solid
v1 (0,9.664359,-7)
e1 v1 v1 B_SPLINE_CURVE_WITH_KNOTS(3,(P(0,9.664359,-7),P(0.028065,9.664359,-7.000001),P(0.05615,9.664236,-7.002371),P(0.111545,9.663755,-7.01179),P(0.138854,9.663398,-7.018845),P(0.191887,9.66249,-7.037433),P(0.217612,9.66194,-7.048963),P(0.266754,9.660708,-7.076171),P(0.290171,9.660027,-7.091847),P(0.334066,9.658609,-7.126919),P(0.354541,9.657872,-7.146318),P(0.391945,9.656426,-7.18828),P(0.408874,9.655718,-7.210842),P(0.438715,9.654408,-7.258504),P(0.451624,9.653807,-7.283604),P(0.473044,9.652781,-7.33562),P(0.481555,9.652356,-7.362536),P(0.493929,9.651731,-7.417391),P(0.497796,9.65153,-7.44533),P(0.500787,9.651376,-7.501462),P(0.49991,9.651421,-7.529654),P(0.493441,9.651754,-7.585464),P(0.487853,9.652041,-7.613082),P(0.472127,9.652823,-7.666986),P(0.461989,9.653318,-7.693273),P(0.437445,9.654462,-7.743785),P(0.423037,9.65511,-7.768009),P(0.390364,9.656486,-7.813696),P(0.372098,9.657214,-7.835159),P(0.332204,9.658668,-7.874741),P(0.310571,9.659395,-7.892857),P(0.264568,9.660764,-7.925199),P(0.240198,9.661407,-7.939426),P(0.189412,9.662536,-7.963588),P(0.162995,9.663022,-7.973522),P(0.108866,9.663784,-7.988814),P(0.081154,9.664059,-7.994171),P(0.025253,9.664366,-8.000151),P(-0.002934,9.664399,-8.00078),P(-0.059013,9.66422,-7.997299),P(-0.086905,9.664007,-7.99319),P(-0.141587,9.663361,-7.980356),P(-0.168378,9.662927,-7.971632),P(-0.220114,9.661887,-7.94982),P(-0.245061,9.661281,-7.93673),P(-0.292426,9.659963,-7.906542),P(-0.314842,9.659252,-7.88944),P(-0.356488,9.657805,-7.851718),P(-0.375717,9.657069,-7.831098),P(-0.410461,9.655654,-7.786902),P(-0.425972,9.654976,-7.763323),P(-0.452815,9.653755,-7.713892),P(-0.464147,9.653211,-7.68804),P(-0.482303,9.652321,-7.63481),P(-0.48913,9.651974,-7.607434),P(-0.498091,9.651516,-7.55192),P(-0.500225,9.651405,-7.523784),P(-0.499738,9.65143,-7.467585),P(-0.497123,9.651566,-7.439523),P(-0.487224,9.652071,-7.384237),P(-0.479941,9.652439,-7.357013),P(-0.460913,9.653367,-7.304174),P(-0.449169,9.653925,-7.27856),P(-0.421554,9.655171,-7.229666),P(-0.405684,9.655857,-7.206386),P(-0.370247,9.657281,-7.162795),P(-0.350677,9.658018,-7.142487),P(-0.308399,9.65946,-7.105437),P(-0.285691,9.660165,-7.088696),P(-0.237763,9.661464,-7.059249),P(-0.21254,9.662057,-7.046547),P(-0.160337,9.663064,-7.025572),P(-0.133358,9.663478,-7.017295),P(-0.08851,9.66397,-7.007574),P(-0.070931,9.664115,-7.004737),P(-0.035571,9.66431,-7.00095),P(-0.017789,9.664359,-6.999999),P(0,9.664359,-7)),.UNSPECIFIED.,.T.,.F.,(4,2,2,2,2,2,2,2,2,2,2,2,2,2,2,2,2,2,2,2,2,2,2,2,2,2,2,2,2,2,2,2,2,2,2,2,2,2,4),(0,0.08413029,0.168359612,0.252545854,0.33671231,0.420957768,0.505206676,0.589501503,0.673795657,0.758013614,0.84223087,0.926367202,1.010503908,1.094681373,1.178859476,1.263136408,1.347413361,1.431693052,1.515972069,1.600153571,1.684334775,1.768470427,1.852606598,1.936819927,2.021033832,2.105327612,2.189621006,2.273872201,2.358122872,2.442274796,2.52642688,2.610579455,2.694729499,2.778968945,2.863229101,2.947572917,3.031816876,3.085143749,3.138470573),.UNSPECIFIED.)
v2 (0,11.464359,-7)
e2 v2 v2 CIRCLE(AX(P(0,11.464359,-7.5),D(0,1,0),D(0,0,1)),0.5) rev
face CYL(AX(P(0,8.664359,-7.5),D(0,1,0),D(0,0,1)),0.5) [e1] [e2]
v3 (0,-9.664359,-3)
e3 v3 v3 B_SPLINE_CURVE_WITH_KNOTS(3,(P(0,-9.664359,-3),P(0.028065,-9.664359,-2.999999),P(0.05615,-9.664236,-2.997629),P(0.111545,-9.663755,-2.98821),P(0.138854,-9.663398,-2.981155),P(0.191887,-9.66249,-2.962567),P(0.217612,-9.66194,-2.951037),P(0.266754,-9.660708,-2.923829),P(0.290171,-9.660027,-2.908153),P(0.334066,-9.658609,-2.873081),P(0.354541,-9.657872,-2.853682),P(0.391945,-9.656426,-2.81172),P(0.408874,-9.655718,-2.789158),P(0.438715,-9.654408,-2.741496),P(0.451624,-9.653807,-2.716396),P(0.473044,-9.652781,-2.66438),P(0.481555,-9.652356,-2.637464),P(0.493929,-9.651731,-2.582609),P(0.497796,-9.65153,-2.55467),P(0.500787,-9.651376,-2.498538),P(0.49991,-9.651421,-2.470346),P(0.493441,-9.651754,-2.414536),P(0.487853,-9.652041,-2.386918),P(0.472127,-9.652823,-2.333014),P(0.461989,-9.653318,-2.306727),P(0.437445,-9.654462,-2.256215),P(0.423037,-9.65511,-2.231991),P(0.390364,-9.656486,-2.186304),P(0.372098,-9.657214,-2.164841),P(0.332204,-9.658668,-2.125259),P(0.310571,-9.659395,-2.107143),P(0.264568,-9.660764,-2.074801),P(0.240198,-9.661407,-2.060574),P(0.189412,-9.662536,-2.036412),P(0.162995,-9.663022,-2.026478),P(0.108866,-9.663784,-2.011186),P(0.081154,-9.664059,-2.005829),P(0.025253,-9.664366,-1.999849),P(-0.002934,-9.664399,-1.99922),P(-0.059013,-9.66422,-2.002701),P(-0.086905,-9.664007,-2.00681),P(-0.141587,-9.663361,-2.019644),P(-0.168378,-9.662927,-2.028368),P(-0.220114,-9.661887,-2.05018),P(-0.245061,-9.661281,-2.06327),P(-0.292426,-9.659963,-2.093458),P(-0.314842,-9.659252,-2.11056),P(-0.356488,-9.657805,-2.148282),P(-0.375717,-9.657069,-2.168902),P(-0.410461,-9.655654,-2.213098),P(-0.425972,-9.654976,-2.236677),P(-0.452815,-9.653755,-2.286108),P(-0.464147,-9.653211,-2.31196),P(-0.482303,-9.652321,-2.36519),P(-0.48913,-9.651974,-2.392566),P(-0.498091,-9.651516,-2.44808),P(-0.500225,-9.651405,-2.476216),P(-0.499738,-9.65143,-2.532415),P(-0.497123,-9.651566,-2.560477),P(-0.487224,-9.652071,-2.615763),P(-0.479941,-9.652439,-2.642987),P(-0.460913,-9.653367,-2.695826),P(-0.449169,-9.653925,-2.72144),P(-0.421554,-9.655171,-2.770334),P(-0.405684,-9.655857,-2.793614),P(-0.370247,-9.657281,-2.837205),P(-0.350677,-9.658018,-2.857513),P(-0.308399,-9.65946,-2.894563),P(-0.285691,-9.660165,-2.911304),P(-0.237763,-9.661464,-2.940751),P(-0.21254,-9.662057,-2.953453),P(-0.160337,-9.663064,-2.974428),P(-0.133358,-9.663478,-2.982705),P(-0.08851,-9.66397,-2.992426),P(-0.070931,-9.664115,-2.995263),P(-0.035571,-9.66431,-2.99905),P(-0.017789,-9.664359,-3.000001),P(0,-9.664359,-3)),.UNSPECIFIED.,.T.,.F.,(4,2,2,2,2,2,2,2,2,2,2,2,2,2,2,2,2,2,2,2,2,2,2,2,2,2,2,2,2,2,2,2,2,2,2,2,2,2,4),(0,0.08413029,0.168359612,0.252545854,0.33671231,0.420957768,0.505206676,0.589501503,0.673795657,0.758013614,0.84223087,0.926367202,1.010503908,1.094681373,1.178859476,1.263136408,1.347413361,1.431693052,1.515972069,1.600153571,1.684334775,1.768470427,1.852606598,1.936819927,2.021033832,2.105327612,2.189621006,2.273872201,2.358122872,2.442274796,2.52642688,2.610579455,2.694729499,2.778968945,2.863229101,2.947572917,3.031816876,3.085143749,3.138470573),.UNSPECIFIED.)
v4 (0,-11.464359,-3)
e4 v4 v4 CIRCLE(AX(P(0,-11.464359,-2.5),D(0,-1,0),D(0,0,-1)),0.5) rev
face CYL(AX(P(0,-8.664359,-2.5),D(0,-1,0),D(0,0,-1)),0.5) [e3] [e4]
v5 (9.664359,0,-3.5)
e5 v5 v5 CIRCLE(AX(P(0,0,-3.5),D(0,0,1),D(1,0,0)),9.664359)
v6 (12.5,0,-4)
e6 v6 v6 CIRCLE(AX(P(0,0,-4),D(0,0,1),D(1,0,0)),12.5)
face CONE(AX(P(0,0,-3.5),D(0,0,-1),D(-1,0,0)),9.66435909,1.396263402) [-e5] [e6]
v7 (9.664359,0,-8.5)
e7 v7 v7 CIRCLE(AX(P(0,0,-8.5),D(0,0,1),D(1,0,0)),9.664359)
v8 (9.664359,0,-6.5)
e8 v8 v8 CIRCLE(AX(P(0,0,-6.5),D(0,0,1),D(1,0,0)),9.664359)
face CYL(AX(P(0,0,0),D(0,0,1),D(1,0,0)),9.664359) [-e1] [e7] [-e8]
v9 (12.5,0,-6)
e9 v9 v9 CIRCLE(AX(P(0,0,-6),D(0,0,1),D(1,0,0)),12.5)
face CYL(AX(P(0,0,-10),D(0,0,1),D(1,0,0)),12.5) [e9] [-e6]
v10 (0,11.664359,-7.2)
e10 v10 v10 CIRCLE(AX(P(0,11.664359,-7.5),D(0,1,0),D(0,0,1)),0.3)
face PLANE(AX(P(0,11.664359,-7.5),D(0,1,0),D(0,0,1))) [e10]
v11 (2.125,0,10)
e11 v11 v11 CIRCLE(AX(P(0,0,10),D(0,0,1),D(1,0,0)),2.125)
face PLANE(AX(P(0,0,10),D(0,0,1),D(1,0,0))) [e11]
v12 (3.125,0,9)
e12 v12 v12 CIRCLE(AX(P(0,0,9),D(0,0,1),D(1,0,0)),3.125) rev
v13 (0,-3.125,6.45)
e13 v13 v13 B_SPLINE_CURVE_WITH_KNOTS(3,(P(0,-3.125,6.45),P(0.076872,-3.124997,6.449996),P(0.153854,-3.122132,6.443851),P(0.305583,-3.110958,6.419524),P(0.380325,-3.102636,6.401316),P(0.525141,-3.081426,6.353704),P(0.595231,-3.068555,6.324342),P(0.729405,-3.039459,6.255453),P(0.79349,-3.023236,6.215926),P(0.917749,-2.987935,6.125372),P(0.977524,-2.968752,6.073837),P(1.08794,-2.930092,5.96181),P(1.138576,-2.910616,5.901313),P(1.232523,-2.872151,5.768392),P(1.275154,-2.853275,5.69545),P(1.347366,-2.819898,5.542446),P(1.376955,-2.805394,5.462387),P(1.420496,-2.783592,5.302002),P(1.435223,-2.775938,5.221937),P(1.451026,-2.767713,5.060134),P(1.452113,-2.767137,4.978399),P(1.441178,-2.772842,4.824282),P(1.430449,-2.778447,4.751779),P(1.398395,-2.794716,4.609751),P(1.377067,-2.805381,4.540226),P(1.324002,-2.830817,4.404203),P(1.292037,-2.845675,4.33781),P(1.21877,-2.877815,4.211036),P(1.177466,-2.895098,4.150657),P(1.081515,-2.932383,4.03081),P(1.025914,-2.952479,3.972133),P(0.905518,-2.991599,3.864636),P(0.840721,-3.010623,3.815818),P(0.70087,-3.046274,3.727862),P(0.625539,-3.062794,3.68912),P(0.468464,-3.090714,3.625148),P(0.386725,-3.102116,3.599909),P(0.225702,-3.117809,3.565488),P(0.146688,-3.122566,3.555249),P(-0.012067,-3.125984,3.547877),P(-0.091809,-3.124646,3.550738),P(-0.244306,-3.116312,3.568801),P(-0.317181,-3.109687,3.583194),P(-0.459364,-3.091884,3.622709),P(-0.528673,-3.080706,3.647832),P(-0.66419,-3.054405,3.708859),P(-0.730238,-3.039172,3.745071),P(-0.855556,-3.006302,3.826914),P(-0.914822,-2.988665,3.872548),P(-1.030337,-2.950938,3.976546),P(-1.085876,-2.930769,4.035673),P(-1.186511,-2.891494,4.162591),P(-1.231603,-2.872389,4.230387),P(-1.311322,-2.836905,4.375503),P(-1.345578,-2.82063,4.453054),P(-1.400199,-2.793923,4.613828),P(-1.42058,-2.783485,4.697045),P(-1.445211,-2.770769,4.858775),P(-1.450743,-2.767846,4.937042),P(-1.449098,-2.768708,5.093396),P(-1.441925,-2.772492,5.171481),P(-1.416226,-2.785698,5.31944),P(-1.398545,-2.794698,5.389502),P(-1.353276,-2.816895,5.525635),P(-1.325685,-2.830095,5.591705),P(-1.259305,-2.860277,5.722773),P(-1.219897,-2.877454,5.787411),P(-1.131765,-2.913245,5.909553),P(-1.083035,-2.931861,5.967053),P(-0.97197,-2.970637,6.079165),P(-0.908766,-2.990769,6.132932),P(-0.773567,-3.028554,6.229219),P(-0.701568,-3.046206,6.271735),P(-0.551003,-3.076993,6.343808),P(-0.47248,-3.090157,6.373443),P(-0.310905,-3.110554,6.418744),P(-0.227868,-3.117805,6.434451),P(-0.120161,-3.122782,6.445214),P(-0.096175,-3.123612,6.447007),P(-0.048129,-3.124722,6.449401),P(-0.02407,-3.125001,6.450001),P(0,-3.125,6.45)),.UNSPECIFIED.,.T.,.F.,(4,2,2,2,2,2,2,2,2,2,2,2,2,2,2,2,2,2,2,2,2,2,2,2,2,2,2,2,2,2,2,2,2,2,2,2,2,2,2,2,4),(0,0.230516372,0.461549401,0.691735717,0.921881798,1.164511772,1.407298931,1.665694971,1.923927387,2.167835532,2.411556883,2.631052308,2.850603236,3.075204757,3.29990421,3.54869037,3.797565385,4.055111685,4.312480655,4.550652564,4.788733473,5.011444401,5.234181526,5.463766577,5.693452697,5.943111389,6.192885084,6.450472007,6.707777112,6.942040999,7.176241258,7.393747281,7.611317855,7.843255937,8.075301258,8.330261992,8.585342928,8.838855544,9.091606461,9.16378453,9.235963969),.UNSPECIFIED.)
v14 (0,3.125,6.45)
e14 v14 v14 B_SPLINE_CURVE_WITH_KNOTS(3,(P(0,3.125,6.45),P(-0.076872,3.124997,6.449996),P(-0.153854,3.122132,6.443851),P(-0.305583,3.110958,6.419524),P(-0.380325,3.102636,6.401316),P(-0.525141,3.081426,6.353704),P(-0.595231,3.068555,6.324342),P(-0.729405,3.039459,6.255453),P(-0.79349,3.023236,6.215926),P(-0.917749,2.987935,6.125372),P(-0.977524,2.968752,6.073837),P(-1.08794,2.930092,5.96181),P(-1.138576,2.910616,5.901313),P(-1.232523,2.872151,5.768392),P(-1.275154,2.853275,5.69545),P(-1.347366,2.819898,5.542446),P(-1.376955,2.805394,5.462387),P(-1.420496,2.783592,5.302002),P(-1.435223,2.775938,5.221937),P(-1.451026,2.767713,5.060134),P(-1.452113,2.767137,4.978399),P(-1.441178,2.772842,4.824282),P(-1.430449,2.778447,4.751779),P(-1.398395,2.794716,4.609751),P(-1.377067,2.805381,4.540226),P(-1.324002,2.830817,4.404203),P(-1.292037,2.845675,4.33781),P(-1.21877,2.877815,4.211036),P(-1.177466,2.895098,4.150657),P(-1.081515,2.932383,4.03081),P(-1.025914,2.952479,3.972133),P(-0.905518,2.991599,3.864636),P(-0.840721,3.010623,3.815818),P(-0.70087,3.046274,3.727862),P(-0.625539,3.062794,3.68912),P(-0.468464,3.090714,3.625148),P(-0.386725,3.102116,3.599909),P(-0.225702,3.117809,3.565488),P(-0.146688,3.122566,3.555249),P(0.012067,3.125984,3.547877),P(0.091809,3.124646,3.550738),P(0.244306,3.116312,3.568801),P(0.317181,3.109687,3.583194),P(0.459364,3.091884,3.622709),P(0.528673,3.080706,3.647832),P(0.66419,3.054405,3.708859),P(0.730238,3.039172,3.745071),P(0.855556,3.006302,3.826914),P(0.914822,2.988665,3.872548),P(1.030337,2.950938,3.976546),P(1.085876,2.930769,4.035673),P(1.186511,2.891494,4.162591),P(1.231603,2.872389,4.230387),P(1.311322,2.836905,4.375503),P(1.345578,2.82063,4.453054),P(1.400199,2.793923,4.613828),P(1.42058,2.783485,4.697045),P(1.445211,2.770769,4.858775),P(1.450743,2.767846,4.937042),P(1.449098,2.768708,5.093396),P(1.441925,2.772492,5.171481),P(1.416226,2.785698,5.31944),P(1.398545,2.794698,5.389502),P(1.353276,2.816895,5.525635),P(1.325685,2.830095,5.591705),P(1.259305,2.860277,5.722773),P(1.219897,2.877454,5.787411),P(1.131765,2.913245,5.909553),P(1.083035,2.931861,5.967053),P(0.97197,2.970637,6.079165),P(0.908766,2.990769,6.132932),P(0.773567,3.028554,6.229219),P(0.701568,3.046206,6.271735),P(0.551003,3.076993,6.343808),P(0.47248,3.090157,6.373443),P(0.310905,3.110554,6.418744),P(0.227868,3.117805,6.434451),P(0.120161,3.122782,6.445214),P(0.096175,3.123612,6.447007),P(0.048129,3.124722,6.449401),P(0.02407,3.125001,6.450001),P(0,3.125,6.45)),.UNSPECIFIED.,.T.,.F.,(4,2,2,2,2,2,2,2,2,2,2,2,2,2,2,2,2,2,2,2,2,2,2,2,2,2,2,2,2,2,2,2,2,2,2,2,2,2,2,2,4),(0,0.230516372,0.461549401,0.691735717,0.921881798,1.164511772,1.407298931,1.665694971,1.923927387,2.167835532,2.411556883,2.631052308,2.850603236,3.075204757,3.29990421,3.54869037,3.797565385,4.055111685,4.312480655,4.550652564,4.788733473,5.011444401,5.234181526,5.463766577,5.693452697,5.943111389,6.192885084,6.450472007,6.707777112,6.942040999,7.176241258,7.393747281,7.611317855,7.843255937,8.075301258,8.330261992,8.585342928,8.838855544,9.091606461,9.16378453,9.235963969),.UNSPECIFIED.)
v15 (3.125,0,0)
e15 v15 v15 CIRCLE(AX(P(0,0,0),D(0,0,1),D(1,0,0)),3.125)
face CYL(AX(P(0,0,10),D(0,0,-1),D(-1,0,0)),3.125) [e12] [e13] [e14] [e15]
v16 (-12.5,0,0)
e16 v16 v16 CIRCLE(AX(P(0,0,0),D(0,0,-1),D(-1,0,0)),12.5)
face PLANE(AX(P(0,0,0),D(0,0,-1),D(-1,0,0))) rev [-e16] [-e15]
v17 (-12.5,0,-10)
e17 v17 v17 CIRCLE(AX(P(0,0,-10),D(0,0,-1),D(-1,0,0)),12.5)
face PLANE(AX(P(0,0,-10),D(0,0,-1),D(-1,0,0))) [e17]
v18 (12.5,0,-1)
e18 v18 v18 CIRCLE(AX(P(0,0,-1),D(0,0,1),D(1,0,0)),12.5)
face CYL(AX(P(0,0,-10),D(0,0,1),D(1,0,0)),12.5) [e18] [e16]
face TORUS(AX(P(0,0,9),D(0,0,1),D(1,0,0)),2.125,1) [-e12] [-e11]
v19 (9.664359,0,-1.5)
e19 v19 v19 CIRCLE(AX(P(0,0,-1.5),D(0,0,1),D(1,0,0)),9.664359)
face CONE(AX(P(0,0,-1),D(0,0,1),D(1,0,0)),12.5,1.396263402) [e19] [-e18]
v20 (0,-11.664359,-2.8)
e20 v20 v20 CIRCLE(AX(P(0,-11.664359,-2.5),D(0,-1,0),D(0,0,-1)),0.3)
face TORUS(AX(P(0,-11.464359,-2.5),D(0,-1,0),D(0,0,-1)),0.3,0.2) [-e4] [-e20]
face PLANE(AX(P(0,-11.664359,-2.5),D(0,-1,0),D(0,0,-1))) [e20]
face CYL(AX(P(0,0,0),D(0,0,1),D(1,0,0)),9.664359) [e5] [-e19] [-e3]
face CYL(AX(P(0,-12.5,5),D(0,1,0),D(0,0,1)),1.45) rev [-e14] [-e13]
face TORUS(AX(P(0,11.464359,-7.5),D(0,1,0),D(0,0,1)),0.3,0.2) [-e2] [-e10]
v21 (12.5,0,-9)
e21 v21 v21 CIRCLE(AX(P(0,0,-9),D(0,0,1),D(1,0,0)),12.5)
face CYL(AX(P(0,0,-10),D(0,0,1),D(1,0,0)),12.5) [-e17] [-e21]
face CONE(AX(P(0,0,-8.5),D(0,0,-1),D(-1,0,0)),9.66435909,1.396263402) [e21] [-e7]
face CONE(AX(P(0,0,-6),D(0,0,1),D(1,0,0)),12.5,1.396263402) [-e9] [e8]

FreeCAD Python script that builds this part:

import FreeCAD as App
import Part
import Sketcher

V = App.Vector
Q = App.Units.Quantity


def edges_at(feature, points):
    """Names of the edges that pass closest to the given points."""
    edges = feature.Shape.Edges
    near = lambda p: min(range(len(edges)), key=lambda i: edges[i].distToShape(Part.Vertex(*p))[0])
    return sorted({f"Edge{near(p) + 1}" for p in points})


def add_polygon(sketch, points):
    """Adds a closed chain of lines whose ends are joined by coincident constraints."""
    first, n = sketch.GeometryCount, len(points)
    for a, b in zip(points, points[1:] + points[:1]):
        sketch.addGeometry(Part.LineSegment(App.Vector(*a, 0), App.Vector(*b, 0)), False)
    for i in range(n):
        sketch.addConstraint(Sketcher.Constraint("Coincident", first + i, 2, first + (i + 1) % n, 1))

doc = App.newDocument("Part")
body = doc.addObject("PartDesign::Body", "Body")

# Sketch on XY plane
sketch1 = body.newObject("Sketcher::SketchObject", "Sketch")
sketch1.AttachmentSupport = (doc.getObject("XY_Plane"), [""])
sketch1.MapMode = "FlatFace"
sketch1.addGeometry(Part.Circle(V(0, 0, 0), V(0, 0, 1), 3.125), False)
sketch1.addConstraint([
    Sketcher.Constraint("Coincident", 0, 3, -1, 1),
    Sketcher.Constraint("Diameter", 0, Q("6.25 mm")),
])
pad1 = body.newObject("PartDesign::Pad", "Pad")
pad1.Profile = sketch1
pad1.Length = 10
doc.recompute()

fillet = body.newObject("PartDesign::Fillet", "Fillet")
fillet.Base = (pad1, edges_at(pad1, [(-3.125, 0, 10)]))
fillet.Radius = 1

# Sketch on XY plane
sketch2 = body.newObject("Sketcher::SketchObject", "Sketch001")
sketch2.AttachmentSupport = (doc.getObject("XY_Plane"), [""])
sketch2.MapMode = "FlatFace"
sketch2.addGeometry(Part.Circle(V(0, 0, 0), V(0, 0, 1), 12.5), False)
sketch2.addConstraint([
    Sketcher.Constraint("Coincident", 0, 3, -1, 1),
    Sketcher.Constraint("Diameter", 0, Q("25 mm")),
])
pad2 = body.newObject("PartDesign::Pad", "Pad001")
pad2.Profile = sketch2
pad2.Length = 10
pad2.Reversed = True

# Sketch on YZ plane
sketch3 = body.newObject("Sketcher::SketchObject", "Sketch002")
sketch3.AttachmentSupport = (doc.getObject("YZ_Plane"), [""])
sketch3.MapMode = "FlatFace"
add_polygon(sketch3, [(12.5, -1), (9.664359, -1.5), (9.664359, -3.5), (12.5, -4)])  # lines 0-3
add_polygon(sketch3, [(12.5, -9), (12.5, -6), (9.664359, -6.5), (9.664359, -8.5)])  # lines 4-7
sketch3.addConstraint([
    Sketcher.Constraint("Vertical", 1),
    Sketcher.Constraint("Vertical", 3),
    Sketcher.Constraint("Vertical", 4),
    Sketcher.Constraint("Vertical", 6),
    Sketcher.Constraint("Parallel", 0, 5),
    Sketcher.Constraint("Parallel", 2, 7),
    Sketcher.Constraint("Vertical", 3, 2, 4, 2),
    Sketcher.Constraint("Vertical", 1, 2, 5, 2),
    Sketcher.Constraint("Equal", 3, 4),
    Sketcher.Constraint("Equal", 0, 2),
    Sketcher.Constraint("DistanceY", 1, 2, 1, 1, Q("2 mm")),
    Sketcher.Constraint("DistanceY", 3, 1, 3, 2, Q("3 mm")),
    Sketcher.Constraint("Angle", 0, Q("-170 deg")),
    Sketcher.Constraint("DistanceY", 2, 2, -1, 1, Q("4 mm")),
    Sketcher.Constraint("DistanceY", 4, 2, -1, 1, Q("6 mm")),
    Sketcher.Constraint("DistanceX", -1, 1, 2, 2, Q("12.5 mm")),
])
groove = body.newObject("PartDesign::Groove", "Groove")
groove.Profile = sketch3
groove.ReferenceAxis = (sketch3, ["V_Axis"])
groove.Angle = 360

# Sketch on XZ plane
sketch4 = body.newObject("Sketcher::SketchObject", "Sketch003")
sketch4.AttachmentSupport = (doc.getObject("XZ_Plane"), [""])
sketch4.MapMode = "FlatFace"
sketch4.addGeometry(Part.Circle(V(0, 5, 0), V(0, 0, 1), 1.45), False)
sketch4.addConstraint([
    Sketcher.Constraint("PointOnObject", 0, 3, -2),
    Sketcher.Constraint("Diameter", 0, Q("2.9 mm")),
    Sketcher.Constraint("DistanceY", -1, 1, 0, 3, Q("5 mm")),
])
pocket1 = body.newObject("PartDesign::Pocket", "Pocket")
pocket1.Profile = sketch4
pocket1.Type = "ThroughAll"
pocket1.Midplane = True

# Sketch on XZ plane
sketch5 = body.newObject("Sketcher::SketchObject", "Sketch004")
sketch5.AttachmentSupport = (doc.getObject("XZ_Plane"), [""])
sketch5.MapMode = "FlatFace"
sketch5.AttachmentOffset = App.Placement(V(0, 0, -9.664359), App.Rotation())
sketch5.addGeometry(Part.Circle(V(0, -7.5, 0), V(0, 0, 1), 0.5), False)
sketch5.addConstraint([
    Sketcher.Constraint("PointOnObject", 0, 3, -2),
    Sketcher.Constraint("Diameter", 0, Q("1 mm")),
    Sketcher.Constraint("DistanceY", 0, 3, -1, 1, Q("7.5 mm")),
])
pad3 = body.newObject("PartDesign::Pad", "Pad002")
pad3.Profile = sketch5
pad3.Type = "TwoLengths"
pad3.Length = 2
pad3.Length2 = 1
pad3.Reversed = True

# Sketch on XZ plane
sketch6 = body.newObject("Sketcher::SketchObject", "Sketch005")
sketch6.AttachmentSupport = (doc.getObject("XZ_Plane"), [""])
sketch6.MapMode = "FlatFace"
sketch6.AttachmentOffset = App.Placement(V(0, 0, 9.664359), App.Rotation())
sketch6.addGeometry(Part.Circle(V(0, -2.5, 0), V(0, 0, 1), 0.5), False)
sketch6.addConstraint([
    Sketcher.Constraint("PointOnObject", 0, 3, -2),
    Sketcher.Constraint("Diameter", 0, Q("1 mm")),
    Sketcher.Constraint("DistanceY", 0, 3, -1, 1, Q("2.5 mm")),
])
pad4 = body.newObject("PartDesign::Pad", "Pad003")
pad4.Profile = sketch6
pad4.Type = "TwoLengths"
pad4.Length = 2
pad4.Length2 = 1
doc.recompute()

fillet2 = body.newObject("PartDesign::Fillet", "Fillet001")
fillet2.Base = (pad4, edges_at(pad4, [(0, 11.664, -8), (0, -11.664, -2)]))
fillet2.Radius = 0.2

doc.recompute()
